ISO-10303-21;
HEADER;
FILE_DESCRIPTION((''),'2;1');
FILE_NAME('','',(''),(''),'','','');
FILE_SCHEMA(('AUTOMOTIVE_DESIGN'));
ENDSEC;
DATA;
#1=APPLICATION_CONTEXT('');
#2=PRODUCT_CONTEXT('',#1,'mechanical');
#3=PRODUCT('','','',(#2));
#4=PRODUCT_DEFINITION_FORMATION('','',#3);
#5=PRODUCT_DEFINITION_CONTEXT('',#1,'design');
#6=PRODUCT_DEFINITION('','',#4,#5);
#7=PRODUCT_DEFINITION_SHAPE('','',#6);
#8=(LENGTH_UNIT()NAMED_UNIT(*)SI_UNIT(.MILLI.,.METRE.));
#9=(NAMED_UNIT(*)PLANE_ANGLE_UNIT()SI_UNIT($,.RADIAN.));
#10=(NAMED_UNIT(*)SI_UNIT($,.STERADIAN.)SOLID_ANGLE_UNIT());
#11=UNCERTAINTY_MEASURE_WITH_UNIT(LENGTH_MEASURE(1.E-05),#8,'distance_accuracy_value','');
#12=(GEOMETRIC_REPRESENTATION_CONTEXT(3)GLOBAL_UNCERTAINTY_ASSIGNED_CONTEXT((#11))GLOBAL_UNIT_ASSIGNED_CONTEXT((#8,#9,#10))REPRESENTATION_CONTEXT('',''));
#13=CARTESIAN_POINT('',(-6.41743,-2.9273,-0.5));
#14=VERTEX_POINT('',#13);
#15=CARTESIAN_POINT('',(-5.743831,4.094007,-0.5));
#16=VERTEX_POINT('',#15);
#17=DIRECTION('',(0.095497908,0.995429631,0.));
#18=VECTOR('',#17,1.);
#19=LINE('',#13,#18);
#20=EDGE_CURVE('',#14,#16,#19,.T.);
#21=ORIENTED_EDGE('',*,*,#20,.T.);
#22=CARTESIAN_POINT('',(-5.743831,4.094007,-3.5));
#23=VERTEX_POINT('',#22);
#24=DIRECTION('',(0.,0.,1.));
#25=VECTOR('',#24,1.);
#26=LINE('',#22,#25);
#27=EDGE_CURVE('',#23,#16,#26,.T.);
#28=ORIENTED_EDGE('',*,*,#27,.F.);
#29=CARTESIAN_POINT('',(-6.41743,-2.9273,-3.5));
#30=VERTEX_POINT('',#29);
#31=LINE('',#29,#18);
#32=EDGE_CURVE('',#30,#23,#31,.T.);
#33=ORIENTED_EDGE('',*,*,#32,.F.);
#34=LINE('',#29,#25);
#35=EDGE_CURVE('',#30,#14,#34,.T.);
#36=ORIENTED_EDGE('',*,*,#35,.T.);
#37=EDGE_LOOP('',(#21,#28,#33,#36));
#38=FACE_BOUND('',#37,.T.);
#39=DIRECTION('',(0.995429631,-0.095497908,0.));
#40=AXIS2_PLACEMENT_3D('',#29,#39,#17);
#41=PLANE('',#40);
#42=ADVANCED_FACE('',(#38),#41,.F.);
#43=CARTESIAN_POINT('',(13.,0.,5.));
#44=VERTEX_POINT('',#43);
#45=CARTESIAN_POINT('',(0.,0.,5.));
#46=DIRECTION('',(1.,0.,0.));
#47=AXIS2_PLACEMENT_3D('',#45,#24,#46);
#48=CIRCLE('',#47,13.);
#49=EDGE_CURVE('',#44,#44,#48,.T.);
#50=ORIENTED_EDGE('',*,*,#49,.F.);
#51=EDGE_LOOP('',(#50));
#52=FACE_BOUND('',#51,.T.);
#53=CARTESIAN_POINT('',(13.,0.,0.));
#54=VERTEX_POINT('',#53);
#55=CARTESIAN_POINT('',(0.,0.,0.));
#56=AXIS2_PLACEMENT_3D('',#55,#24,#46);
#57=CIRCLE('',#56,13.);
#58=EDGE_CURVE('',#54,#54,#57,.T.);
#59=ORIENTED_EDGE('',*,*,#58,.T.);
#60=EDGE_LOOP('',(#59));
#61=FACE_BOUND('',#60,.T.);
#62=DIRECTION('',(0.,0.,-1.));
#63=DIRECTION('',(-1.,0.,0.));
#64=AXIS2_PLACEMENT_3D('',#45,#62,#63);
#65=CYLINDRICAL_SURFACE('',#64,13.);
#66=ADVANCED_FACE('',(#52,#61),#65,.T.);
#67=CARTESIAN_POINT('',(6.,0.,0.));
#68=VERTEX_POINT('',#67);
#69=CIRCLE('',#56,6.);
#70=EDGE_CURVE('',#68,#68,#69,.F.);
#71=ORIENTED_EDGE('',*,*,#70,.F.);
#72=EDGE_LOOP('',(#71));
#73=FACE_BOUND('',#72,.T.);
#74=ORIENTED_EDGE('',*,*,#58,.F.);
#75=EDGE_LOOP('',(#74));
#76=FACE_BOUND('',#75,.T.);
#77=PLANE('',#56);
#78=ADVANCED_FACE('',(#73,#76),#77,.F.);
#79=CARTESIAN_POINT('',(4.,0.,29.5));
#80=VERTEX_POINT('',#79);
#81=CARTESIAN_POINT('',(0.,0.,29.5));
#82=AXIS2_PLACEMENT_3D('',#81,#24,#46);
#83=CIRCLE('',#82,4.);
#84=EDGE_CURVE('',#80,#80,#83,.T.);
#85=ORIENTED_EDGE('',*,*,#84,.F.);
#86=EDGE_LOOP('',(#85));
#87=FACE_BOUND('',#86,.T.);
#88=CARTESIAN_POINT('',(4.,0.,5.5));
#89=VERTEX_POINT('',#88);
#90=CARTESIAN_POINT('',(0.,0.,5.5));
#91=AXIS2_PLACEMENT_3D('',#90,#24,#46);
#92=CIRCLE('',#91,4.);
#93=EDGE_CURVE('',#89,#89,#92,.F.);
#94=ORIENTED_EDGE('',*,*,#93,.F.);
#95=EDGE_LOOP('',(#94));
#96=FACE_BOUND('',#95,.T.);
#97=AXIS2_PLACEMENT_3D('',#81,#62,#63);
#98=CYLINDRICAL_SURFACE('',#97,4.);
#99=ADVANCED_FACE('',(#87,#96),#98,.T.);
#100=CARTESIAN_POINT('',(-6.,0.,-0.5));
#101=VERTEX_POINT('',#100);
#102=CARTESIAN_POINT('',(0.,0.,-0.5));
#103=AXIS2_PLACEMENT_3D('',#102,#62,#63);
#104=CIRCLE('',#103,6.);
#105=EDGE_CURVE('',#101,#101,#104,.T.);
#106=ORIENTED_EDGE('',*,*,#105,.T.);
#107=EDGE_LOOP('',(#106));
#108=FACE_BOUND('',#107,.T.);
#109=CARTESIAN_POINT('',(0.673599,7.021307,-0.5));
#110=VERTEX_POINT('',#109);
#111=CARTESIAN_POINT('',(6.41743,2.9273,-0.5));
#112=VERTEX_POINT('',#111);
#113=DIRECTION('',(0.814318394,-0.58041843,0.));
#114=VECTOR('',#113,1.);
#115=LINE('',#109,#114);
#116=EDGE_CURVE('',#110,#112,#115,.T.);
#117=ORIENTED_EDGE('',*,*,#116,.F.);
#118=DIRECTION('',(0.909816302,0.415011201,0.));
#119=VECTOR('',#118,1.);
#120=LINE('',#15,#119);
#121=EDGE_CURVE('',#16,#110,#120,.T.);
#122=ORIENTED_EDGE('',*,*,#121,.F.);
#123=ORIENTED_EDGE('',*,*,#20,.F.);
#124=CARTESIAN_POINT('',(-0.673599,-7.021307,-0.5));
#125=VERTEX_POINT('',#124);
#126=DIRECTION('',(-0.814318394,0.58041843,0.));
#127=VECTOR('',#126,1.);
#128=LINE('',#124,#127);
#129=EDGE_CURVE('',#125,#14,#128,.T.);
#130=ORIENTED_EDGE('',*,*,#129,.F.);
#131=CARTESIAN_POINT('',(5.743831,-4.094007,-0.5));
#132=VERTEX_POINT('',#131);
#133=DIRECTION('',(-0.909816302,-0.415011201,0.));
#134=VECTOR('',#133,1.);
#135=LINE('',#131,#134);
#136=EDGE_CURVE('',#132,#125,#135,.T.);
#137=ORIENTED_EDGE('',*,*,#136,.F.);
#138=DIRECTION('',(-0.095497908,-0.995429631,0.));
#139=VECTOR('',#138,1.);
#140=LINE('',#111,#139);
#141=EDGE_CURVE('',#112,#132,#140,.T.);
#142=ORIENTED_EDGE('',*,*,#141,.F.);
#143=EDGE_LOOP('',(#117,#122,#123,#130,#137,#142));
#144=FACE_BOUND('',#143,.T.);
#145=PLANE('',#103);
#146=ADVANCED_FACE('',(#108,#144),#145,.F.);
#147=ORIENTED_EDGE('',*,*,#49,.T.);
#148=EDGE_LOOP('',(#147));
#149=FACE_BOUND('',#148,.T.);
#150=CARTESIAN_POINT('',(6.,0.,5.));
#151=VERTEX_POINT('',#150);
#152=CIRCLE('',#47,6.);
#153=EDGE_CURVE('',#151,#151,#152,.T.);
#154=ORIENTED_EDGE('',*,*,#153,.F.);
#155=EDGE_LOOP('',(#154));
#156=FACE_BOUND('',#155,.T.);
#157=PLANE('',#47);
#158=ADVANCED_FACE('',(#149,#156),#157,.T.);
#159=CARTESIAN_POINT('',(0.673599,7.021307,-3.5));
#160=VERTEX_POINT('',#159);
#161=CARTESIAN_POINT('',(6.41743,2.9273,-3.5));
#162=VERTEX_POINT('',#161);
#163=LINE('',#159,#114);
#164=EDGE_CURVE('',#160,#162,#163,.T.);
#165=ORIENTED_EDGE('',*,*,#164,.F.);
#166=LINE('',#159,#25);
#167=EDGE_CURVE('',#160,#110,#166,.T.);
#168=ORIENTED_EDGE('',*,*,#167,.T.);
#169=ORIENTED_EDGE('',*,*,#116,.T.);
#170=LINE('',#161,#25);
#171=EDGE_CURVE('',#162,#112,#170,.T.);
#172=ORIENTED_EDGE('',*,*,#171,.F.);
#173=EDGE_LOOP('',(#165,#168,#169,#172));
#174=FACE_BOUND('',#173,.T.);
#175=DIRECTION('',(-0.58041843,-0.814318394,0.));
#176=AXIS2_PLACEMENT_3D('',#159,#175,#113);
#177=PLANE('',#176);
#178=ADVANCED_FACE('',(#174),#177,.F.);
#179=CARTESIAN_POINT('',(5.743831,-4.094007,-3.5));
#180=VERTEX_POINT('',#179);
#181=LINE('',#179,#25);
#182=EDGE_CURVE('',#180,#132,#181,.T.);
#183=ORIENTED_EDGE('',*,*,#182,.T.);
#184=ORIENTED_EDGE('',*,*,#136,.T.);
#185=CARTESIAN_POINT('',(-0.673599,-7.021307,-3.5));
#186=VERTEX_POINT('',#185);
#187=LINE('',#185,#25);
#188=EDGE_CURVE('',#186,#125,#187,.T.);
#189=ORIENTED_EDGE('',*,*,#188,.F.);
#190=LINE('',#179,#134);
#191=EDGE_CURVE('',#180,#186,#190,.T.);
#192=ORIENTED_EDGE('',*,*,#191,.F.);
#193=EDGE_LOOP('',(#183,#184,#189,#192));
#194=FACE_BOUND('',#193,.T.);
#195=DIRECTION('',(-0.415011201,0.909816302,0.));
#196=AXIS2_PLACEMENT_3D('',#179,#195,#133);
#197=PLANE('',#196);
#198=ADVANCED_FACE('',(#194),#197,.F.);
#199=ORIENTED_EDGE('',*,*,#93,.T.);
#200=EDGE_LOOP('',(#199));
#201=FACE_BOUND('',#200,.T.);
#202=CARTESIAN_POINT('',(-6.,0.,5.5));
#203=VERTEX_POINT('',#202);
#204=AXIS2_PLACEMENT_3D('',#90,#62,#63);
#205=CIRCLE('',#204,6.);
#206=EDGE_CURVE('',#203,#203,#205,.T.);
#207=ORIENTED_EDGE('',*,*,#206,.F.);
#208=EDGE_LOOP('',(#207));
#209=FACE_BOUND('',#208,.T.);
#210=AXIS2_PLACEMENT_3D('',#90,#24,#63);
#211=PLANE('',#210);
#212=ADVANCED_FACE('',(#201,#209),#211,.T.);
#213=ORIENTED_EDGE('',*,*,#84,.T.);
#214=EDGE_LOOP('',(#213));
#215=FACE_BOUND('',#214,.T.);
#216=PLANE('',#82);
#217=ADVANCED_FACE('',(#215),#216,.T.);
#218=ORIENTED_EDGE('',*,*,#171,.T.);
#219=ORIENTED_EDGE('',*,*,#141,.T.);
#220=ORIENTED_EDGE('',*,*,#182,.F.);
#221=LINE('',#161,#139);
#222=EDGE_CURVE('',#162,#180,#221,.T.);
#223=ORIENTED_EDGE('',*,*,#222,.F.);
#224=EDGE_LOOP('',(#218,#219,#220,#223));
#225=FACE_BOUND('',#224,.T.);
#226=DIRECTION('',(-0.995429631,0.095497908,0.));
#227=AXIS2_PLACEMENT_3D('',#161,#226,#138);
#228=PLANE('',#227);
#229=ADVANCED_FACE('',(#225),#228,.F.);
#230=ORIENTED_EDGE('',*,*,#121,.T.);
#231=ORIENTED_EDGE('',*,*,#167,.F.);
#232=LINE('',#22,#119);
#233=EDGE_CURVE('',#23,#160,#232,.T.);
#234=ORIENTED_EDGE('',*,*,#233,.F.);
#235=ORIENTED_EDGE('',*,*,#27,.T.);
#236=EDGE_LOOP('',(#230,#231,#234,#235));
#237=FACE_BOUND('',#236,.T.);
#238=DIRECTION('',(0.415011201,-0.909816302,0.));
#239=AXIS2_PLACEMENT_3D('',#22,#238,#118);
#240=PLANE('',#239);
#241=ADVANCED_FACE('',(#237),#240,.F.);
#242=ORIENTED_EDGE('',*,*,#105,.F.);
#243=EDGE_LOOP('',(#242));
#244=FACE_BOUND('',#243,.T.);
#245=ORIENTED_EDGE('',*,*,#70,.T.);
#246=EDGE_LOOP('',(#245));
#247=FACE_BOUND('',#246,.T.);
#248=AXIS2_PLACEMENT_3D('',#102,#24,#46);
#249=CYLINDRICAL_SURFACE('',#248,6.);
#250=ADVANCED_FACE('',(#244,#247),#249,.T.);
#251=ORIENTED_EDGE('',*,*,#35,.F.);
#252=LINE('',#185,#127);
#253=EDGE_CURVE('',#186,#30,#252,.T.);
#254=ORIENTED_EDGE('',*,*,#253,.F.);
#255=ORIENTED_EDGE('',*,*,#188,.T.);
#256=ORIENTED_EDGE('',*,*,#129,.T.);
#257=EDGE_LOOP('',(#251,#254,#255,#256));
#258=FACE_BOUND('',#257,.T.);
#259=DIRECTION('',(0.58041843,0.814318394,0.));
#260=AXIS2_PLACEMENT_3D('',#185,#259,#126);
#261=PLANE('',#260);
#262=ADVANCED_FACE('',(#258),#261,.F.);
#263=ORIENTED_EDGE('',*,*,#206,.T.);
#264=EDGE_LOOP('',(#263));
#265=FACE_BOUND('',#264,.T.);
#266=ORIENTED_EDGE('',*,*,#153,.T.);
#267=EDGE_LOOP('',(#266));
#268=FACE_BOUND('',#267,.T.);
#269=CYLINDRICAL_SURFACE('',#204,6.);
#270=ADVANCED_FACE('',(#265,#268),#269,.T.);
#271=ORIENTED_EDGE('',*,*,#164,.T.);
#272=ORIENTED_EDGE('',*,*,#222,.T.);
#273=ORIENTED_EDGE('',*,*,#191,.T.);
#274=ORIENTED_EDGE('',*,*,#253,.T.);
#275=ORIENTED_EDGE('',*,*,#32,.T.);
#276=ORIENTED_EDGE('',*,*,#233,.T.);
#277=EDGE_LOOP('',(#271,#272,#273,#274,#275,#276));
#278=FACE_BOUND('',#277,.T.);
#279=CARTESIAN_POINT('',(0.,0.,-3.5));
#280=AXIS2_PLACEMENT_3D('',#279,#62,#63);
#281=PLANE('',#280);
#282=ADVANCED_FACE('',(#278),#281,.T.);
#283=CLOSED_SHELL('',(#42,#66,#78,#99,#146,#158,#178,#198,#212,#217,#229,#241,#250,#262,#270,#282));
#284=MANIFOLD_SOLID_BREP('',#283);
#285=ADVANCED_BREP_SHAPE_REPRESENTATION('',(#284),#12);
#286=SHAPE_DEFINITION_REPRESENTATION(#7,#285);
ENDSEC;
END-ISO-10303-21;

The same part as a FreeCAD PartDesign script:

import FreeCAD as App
import Part
import Sketcher
from FreeCAD import Vector
Q = App.Units.Quantity


def add_polygon(sketch, points):
    """Adds a closed chain of lines whose ends are joined by coincident constraints."""
    first, n = sketch.GeometryCount, len(points)
    for a, b in zip(points, points[1:] + points[:1]):
        sketch.addGeometry(Part.LineSegment(App.Vector(*a, 0), App.Vector(*b, 0)), False)
    for i in range(n):
        sketch.addConstraint(Sketcher.Constraint("Coincident", first + i, 2, first + (i + 1) % n, 1))

doc = App.newDocument("Part")
params = doc.addObject("Spreadsheet::Sheet", "Params")
for row, (alias, value) in enumerate([
    ("sketch1_diameter", "26 mm"),
    ("pad1_length", "5 mm"),
    ("sketch2_diameter", "8 mm"),
    ("pocket1_length", "5 mm"),
    ("sketch3_diameter", "12 mm"),
    ("pad2_length", "0.5 mm"),
    ("sketch4_diameter", "8 mm"),
    ("pocket2_length", "0.5 mm"),
    ("pad3_length", "3 mm"),
    ("sketch6_diameter", "8 mm"),
    ("pad4_length", "30 mm"),
], start=1):
    params.set(f"A{row}", alias)
    params.set(f"B{row}", "=" + value)
    params.setAlias(f"B{row}", alias)

body = doc.addObject("PartDesign::Body", "Body")

# Sketch on XY plane
sketch1 = body.newObject("Sketcher::SketchObject", "Sketch")
sketch1.AttachmentSupport = (doc.getObject("XY_Plane"), [""])
sketch1.MapMode = "FlatFace"
sketch1.addGeometry(Part.Circle(Vector(0, 0, 0), Vector(0, 0, 1), 13), False)
sketch1.addConstraint([
    Sketcher.Constraint("Coincident", 0, 3, -1, 1),
    Sketcher.Constraint("Diameter", 0, Q("26 mm")),
])
sketch1.setExpression("Constraints[1]", "Params.sketch1_diameter")
pad1 = body.newObject("PartDesign::Pad", "Pad")
pad1.Profile = sketch1
pad1.setExpression("Length", "Params.pad1_length")

# Sketch on XY plane
sketch2 = body.newObject("Sketcher::SketchObject", "Sketch001")
sketch2.AttachmentSupport = (doc.getObject("XY_Plane"), [""])
sketch2.MapMode = "FlatFace"
sketch2.AttachmentOffset = App.Placement(Vector(0, 0, 5), App.Rotation())
sketch2.addGeometry(Part.Circle(Vector(0, 0, 0), Vector(0, 0, 1), 4), False)
sketch2.addConstraint([
    Sketcher.Constraint("Coincident", 0, 3, -1, 1),
    Sketcher.Constraint("Diameter", 0, Q("8 mm")),
])
sketch2.setExpression("Constraints[1]", "Params.sketch2_diameter")
pocket1 = body.newObject("PartDesign::Pocket", "Pocket")
pocket1.Profile = sketch2
pocket1.setExpression("Length", "Params.pocket1_length")

# Sketch on XY plane
sketch3 = body.newObject("Sketcher::SketchObject", "Sketch002")
sketch3.AttachmentSupport = (doc.getObject("XY_Plane"), [""])
sketch3.MapMode = "FlatFace"
sketch3.addGeometry(Part.Circle(Vector(0, 0, 0), Vector(0, 0, 1), 6), False)
sketch3.addConstraint([
    Sketcher.Constraint("Coincident", 0, 3, -1, 1),
    Sketcher.Constraint("Diameter", 0, Q("12 mm")),
])
sketch3.setExpression("Constraints[1]", "Params.sketch3_diameter")
pad2 = body.newObject("PartDesign::Pad", "Pad001")
pad2.Profile = sketch3
pad2.setExpression("Length", "Params.pad2_length")
pad2.Reversed = True

# Sketch on XY plane
sketch4 = body.newObject("Sketcher::SketchObject", "Sketch003")
sketch4.AttachmentSupport = (doc.getObject("XY_Plane"), [""])
sketch4.MapMode = "FlatFace"
sketch4.addGeometry(Part.Circle(Vector(0, 0, 0), Vector(0, 0, 1), 4), False)
sketch4.addConstraint([
    Sketcher.Constraint("Coincident", 0, 3, -1, 1),
    Sketcher.Constraint("Diameter", 0, Q("8 mm")),
])
sketch4.setExpression("Constraints[1]", "Params.sketch4_diameter")
pocket2 = body.newObject("PartDesign::Pocket", "Pocket001")
pocket2.Profile = sketch4
pocket2.setExpression("Length", "Params.pocket2_length")
doc.recompute()

datumplane = body.newObject("PartDesign::Plane", "DatumPlane")
datumplane.AttachmentSupport = (doc.getObject("XY_Plane"), [""])
datumplane.MapMode = "FlatFace"
datumplane.AttachmentOffset = App.Placement(Vector(0, 0, 2.5), App.Rotation())
mirrored = body.newObject("PartDesign::Mirrored", "Mirrored")
mirrored.Originals = [pad2, pocket2]
mirrored.MirrorPlane = (datumplane, [""])
body.Tip = mirrored

# Sketch on XY plane
sketch5 = body.newObject("Sketcher::SketchObject", "Sketch004")
sketch5.AttachmentSupport = (doc.getObject("XY_Plane"), [""])
sketch5.MapMode = "FlatFace"
sketch5.AttachmentOffset = App.Placement(Vector(0, 0, -0.5), App.Rotation())
add_polygon(sketch5, [(-5.743831, 4.094007), (0.673599, 7.021307), (6.41743, 2.9273), (5.743831, -4.094007), (-0.673599, -7.021307), (-6.41743, -2.9273)])  # lines 0-5
sketch5.addConstraint([
    Sketcher.Constraint("Symmetric", 0, 2, 3, 2, -1, 1),
    Sketcher.Constraint("Symmetric", 1, 2, 4, 2, -1, 1),
    Sketcher.Constraint("Symmetric", 2, 2, 5, 2, -1, 1),
    Sketcher.Constraint("Equal", 0, 1),
    Sketcher.Constraint("Equal", 1, 2),
    Sketcher.Constraint("DistanceX", -1, 1, 0, 2, Q("0.673599 mm")),
    Sketcher.Constraint("DistanceY", -1, 1, 1, 2, Q("2.9273 mm")),
    Sketcher.Constraint("DistanceX", 2, 2, 1, 2, Q("0.673599 mm")),
    Sketcher.Constraint("DistanceY", 3, 2, 2, 2, Q("2.9273 mm")),
])
pad3 = body.newObject("PartDesign::Pad", "Pad002")
pad3.Profile = sketch5
pad3.setExpression("Length", "Params.pad3_length")
pad3.Reversed = True

# Sketch on XY plane
sketch6 = body.newObject("Sketcher::SketchObject", "Sketch005")
sketch6.AttachmentSupport = (doc.getObject("XY_Plane"), [""])
sketch6.MapMode = "FlatFace"
sketch6.AttachmentOffset = App.Placement(Vector(0, 0, 29.5), App.Rotation())
sketch6.addGeometry(Part.Circle(Vector(0, 0, 0), Vector(0, 0, 1), 4), False)
sketch6.addConstraint([
    Sketcher.Constraint("Coincident", 0, 3, -1, 1),
    Sketcher.Constraint("Diameter", 0, Q("8 mm")),
])
sketch6.setExpression("Constraints[1]", "Params.sketch6_diameter")
pad4 = body.newObject("PartDesign::Pad", "Pad003")
pad4.Profile = sketch6
pad4.setExpression("Length", "Params.pad4_length")
pad4.Reversed = True

doc.recompute()
